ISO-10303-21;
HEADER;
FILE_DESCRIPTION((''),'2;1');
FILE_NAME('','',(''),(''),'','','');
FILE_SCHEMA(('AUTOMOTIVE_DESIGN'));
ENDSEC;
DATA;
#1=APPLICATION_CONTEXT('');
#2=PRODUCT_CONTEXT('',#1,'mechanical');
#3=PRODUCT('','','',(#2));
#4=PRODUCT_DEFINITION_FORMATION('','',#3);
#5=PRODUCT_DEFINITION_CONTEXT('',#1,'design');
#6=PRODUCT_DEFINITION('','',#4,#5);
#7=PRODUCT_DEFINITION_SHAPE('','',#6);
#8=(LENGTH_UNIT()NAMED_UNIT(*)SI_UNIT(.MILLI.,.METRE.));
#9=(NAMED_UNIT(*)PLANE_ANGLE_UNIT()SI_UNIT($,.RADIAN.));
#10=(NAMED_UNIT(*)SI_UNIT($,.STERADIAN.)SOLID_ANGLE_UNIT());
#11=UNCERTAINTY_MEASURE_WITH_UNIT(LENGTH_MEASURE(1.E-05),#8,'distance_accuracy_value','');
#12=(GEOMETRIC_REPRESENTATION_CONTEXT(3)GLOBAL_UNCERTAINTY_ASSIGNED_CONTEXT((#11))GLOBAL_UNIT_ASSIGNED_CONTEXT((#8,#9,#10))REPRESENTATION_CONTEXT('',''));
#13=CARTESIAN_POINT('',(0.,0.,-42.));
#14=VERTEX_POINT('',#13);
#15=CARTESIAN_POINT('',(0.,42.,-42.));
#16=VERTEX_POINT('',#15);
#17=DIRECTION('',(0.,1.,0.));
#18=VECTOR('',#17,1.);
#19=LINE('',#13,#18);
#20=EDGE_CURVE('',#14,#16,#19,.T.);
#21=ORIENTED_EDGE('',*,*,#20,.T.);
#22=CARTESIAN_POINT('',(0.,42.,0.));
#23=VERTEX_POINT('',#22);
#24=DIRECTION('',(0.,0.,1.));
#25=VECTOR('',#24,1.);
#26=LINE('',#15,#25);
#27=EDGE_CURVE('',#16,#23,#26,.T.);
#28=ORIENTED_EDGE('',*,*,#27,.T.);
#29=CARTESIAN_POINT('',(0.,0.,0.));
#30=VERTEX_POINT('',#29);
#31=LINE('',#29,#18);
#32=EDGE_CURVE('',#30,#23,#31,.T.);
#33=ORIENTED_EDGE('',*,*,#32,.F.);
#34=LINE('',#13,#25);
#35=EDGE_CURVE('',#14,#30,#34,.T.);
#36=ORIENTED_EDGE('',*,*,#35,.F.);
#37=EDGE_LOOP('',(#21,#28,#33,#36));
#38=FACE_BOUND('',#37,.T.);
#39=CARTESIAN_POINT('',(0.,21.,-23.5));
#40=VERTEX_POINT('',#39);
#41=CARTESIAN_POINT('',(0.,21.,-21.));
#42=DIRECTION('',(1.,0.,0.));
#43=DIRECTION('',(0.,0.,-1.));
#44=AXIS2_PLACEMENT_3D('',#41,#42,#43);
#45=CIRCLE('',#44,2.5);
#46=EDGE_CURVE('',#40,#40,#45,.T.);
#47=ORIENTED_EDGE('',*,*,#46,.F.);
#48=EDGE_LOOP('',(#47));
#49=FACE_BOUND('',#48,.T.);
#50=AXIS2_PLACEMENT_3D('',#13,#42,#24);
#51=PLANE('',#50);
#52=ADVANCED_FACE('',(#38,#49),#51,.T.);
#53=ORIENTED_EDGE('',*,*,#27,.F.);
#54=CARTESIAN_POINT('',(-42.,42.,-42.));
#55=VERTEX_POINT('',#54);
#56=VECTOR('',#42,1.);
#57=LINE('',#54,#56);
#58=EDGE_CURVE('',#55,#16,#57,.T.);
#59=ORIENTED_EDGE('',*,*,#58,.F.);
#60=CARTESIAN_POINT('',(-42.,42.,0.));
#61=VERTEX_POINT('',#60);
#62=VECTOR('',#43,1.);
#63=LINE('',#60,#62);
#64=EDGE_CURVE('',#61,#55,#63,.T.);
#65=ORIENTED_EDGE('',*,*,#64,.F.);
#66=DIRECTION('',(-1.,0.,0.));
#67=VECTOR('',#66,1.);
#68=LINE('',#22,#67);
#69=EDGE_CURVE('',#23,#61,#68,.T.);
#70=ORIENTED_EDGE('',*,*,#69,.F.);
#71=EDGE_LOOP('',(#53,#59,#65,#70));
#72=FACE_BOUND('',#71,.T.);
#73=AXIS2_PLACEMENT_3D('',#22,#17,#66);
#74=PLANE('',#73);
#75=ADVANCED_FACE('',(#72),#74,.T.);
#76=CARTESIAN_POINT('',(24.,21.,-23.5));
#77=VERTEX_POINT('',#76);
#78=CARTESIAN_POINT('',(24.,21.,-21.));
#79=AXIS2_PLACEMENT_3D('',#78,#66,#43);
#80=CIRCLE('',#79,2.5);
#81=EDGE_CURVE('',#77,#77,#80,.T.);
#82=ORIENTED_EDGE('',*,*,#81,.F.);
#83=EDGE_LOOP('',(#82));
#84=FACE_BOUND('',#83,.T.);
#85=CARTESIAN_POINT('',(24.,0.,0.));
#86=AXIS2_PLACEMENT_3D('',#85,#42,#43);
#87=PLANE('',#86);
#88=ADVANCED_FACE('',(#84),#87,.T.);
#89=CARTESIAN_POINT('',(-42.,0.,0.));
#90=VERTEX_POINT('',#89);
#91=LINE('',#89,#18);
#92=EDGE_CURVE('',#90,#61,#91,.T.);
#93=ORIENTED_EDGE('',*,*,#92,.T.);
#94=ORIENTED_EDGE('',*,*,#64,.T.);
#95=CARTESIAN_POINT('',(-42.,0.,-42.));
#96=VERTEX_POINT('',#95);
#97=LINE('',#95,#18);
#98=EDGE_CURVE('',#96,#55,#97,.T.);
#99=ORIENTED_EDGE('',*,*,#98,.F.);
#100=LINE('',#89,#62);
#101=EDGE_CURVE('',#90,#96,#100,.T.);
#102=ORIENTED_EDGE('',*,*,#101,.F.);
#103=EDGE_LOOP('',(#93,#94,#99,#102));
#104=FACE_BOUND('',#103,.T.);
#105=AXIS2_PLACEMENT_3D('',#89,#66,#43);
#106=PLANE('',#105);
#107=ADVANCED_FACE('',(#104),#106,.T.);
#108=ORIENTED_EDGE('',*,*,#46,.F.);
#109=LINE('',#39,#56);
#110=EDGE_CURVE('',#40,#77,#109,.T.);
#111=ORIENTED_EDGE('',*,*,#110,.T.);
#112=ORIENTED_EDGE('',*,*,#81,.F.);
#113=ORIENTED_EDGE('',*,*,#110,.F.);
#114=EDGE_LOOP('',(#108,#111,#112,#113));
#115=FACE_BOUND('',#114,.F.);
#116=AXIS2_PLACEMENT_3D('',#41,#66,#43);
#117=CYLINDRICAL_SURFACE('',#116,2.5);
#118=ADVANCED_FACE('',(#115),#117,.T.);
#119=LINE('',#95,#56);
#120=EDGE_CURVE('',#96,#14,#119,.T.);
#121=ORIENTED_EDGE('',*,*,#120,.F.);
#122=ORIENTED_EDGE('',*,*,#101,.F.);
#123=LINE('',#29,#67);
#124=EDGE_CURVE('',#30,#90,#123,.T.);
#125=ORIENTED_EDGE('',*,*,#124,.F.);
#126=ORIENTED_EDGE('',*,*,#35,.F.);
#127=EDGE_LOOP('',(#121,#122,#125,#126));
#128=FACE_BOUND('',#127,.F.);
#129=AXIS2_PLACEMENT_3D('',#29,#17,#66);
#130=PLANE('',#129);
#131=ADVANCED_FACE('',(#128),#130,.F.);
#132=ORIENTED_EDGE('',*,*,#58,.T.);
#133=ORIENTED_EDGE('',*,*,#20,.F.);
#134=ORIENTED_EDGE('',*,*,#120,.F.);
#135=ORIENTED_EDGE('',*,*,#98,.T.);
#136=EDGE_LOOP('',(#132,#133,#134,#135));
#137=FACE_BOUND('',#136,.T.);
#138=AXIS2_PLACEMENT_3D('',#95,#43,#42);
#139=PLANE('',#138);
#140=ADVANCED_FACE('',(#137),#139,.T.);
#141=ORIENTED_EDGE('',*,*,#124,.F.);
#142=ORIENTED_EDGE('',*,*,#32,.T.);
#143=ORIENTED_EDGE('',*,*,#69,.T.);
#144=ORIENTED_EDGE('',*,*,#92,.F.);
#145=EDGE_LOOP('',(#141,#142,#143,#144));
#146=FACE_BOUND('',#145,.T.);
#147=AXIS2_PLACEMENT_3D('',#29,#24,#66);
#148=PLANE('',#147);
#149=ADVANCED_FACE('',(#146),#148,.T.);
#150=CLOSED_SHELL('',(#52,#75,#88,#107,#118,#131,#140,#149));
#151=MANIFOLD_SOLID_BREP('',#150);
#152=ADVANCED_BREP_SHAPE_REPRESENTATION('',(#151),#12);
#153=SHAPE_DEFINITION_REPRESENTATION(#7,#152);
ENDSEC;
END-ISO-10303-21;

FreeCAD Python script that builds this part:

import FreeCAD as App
import Part
import Sketcher

V = App.Vector
Q = App.Units.Quantity

doc = App.newDocument("Part")
params = doc.addObject("Spreadsheet::Sheet", "Params")
for row, (alias, value) in enumerate([
    ("sketch1_width", "42 mm"),
    ("pad1_length", "42 mm"),
    ("sketch2_diameter", "5 mm"),
    ("pad2_length", "24 mm"),
], start=1):
    params.set(f"A{row}", alias)
    params.set(f"B{row}", "=" + value)
    params.setAlias(f"B{row}", alias)

body = doc.addObject("PartDesign::Body", "Body")

# Sketch on XZ plane
sketch1 = body.newObject("Sketcher::SketchObject", "Sketch")
sketch1.AttachmentSupport = (doc.getObject("XZ_Plane"), [""])
sketch1.MapMode = "FlatFace"
sketch1.addGeometry(Part.LineSegment(V(-42, 0, 0), V(0, 0, 0)), False)
sketch1.addGeometry(Part.LineSegment(V(0, 0, 0), V(0, -42, 0)), False)
sketch1.addGeometry(Part.LineSegment(V(0, -42, 0), V(-42, -42, 0)), False)
sketch1.addGeometry(Part.LineSegment(V(-42, -42, 0), V(-42, 0, 0)), False)
sketch1.addConstraint(Sketcher.Constraint("Coincident", 0, 2, 1, 1))
sketch1.addConstraint(Sketcher.Constraint("Coincident", 1, 2, 2, 1))
sketch1.addConstraint(Sketcher.Constraint("Coincident", 2, 2, 3, 1))
sketch1.addConstraint(Sketcher.Constraint("Coincident", 3, 2, 0, 1))
sketch1.addConstraint(Sketcher.Constraint("Horizontal", 0))
sketch1.addConstraint(Sketcher.Constraint("Vertical", 1))
sketch1.addConstraint(Sketcher.Constraint("Horizontal", 2))
sketch1.addConstraint(Sketcher.Constraint("Vertical", 3))
sketch1.addConstraint(Sketcher.Constraint("Coincident", 0, 2, -1, 1))
sketch1.addConstraint(Sketcher.Constraint("Equal", 2, 1))
sketch1.addConstraint(Sketcher.Constraint("DistanceX", 0, 1, 0, 2, Q("42 mm")))
sketch1.setExpression("Constraints[10]", "Params.sketch1_width")
pad1 = body.newObject("PartDesign::Pad", "Pad")
pad1.Profile = sketch1
pad1.setExpression("Length", "Params.pad1_length")
pad1.Reversed = True

# Sketch on YZ plane
sketch2 = body.newObject("Sketcher::SketchObject", "Sketch001")
sketch2.AttachmentSupport = (doc.getObject("YZ_Plane"), [""])
sketch2.MapMode = "FlatFace"
sketch2.addGeometry(Part.Circle(V(21, -21, 0), V(0, 0, 1), 2.5), False)
sketch2.addConstraint(Sketcher.Constraint("Diameter", 0, Q("5 mm")))
sketch2.addConstraint(Sketcher.Constraint("DistanceX", -1, 1, 0, 3, Q("21 mm")))
sketch2.addConstraint(Sketcher.Constraint("DistanceY", 0, 3, -1, 1, Q("21 mm")))
sketch2.setExpression("Constraints[0]", "Params.sketch2_diameter")
pad2 = body.newObject("PartDesign::Pad", "Pad001")
pad2.Profile = sketch2
pad2.setExpression("Length", "Params.pad2_length")

doc.recompute()
